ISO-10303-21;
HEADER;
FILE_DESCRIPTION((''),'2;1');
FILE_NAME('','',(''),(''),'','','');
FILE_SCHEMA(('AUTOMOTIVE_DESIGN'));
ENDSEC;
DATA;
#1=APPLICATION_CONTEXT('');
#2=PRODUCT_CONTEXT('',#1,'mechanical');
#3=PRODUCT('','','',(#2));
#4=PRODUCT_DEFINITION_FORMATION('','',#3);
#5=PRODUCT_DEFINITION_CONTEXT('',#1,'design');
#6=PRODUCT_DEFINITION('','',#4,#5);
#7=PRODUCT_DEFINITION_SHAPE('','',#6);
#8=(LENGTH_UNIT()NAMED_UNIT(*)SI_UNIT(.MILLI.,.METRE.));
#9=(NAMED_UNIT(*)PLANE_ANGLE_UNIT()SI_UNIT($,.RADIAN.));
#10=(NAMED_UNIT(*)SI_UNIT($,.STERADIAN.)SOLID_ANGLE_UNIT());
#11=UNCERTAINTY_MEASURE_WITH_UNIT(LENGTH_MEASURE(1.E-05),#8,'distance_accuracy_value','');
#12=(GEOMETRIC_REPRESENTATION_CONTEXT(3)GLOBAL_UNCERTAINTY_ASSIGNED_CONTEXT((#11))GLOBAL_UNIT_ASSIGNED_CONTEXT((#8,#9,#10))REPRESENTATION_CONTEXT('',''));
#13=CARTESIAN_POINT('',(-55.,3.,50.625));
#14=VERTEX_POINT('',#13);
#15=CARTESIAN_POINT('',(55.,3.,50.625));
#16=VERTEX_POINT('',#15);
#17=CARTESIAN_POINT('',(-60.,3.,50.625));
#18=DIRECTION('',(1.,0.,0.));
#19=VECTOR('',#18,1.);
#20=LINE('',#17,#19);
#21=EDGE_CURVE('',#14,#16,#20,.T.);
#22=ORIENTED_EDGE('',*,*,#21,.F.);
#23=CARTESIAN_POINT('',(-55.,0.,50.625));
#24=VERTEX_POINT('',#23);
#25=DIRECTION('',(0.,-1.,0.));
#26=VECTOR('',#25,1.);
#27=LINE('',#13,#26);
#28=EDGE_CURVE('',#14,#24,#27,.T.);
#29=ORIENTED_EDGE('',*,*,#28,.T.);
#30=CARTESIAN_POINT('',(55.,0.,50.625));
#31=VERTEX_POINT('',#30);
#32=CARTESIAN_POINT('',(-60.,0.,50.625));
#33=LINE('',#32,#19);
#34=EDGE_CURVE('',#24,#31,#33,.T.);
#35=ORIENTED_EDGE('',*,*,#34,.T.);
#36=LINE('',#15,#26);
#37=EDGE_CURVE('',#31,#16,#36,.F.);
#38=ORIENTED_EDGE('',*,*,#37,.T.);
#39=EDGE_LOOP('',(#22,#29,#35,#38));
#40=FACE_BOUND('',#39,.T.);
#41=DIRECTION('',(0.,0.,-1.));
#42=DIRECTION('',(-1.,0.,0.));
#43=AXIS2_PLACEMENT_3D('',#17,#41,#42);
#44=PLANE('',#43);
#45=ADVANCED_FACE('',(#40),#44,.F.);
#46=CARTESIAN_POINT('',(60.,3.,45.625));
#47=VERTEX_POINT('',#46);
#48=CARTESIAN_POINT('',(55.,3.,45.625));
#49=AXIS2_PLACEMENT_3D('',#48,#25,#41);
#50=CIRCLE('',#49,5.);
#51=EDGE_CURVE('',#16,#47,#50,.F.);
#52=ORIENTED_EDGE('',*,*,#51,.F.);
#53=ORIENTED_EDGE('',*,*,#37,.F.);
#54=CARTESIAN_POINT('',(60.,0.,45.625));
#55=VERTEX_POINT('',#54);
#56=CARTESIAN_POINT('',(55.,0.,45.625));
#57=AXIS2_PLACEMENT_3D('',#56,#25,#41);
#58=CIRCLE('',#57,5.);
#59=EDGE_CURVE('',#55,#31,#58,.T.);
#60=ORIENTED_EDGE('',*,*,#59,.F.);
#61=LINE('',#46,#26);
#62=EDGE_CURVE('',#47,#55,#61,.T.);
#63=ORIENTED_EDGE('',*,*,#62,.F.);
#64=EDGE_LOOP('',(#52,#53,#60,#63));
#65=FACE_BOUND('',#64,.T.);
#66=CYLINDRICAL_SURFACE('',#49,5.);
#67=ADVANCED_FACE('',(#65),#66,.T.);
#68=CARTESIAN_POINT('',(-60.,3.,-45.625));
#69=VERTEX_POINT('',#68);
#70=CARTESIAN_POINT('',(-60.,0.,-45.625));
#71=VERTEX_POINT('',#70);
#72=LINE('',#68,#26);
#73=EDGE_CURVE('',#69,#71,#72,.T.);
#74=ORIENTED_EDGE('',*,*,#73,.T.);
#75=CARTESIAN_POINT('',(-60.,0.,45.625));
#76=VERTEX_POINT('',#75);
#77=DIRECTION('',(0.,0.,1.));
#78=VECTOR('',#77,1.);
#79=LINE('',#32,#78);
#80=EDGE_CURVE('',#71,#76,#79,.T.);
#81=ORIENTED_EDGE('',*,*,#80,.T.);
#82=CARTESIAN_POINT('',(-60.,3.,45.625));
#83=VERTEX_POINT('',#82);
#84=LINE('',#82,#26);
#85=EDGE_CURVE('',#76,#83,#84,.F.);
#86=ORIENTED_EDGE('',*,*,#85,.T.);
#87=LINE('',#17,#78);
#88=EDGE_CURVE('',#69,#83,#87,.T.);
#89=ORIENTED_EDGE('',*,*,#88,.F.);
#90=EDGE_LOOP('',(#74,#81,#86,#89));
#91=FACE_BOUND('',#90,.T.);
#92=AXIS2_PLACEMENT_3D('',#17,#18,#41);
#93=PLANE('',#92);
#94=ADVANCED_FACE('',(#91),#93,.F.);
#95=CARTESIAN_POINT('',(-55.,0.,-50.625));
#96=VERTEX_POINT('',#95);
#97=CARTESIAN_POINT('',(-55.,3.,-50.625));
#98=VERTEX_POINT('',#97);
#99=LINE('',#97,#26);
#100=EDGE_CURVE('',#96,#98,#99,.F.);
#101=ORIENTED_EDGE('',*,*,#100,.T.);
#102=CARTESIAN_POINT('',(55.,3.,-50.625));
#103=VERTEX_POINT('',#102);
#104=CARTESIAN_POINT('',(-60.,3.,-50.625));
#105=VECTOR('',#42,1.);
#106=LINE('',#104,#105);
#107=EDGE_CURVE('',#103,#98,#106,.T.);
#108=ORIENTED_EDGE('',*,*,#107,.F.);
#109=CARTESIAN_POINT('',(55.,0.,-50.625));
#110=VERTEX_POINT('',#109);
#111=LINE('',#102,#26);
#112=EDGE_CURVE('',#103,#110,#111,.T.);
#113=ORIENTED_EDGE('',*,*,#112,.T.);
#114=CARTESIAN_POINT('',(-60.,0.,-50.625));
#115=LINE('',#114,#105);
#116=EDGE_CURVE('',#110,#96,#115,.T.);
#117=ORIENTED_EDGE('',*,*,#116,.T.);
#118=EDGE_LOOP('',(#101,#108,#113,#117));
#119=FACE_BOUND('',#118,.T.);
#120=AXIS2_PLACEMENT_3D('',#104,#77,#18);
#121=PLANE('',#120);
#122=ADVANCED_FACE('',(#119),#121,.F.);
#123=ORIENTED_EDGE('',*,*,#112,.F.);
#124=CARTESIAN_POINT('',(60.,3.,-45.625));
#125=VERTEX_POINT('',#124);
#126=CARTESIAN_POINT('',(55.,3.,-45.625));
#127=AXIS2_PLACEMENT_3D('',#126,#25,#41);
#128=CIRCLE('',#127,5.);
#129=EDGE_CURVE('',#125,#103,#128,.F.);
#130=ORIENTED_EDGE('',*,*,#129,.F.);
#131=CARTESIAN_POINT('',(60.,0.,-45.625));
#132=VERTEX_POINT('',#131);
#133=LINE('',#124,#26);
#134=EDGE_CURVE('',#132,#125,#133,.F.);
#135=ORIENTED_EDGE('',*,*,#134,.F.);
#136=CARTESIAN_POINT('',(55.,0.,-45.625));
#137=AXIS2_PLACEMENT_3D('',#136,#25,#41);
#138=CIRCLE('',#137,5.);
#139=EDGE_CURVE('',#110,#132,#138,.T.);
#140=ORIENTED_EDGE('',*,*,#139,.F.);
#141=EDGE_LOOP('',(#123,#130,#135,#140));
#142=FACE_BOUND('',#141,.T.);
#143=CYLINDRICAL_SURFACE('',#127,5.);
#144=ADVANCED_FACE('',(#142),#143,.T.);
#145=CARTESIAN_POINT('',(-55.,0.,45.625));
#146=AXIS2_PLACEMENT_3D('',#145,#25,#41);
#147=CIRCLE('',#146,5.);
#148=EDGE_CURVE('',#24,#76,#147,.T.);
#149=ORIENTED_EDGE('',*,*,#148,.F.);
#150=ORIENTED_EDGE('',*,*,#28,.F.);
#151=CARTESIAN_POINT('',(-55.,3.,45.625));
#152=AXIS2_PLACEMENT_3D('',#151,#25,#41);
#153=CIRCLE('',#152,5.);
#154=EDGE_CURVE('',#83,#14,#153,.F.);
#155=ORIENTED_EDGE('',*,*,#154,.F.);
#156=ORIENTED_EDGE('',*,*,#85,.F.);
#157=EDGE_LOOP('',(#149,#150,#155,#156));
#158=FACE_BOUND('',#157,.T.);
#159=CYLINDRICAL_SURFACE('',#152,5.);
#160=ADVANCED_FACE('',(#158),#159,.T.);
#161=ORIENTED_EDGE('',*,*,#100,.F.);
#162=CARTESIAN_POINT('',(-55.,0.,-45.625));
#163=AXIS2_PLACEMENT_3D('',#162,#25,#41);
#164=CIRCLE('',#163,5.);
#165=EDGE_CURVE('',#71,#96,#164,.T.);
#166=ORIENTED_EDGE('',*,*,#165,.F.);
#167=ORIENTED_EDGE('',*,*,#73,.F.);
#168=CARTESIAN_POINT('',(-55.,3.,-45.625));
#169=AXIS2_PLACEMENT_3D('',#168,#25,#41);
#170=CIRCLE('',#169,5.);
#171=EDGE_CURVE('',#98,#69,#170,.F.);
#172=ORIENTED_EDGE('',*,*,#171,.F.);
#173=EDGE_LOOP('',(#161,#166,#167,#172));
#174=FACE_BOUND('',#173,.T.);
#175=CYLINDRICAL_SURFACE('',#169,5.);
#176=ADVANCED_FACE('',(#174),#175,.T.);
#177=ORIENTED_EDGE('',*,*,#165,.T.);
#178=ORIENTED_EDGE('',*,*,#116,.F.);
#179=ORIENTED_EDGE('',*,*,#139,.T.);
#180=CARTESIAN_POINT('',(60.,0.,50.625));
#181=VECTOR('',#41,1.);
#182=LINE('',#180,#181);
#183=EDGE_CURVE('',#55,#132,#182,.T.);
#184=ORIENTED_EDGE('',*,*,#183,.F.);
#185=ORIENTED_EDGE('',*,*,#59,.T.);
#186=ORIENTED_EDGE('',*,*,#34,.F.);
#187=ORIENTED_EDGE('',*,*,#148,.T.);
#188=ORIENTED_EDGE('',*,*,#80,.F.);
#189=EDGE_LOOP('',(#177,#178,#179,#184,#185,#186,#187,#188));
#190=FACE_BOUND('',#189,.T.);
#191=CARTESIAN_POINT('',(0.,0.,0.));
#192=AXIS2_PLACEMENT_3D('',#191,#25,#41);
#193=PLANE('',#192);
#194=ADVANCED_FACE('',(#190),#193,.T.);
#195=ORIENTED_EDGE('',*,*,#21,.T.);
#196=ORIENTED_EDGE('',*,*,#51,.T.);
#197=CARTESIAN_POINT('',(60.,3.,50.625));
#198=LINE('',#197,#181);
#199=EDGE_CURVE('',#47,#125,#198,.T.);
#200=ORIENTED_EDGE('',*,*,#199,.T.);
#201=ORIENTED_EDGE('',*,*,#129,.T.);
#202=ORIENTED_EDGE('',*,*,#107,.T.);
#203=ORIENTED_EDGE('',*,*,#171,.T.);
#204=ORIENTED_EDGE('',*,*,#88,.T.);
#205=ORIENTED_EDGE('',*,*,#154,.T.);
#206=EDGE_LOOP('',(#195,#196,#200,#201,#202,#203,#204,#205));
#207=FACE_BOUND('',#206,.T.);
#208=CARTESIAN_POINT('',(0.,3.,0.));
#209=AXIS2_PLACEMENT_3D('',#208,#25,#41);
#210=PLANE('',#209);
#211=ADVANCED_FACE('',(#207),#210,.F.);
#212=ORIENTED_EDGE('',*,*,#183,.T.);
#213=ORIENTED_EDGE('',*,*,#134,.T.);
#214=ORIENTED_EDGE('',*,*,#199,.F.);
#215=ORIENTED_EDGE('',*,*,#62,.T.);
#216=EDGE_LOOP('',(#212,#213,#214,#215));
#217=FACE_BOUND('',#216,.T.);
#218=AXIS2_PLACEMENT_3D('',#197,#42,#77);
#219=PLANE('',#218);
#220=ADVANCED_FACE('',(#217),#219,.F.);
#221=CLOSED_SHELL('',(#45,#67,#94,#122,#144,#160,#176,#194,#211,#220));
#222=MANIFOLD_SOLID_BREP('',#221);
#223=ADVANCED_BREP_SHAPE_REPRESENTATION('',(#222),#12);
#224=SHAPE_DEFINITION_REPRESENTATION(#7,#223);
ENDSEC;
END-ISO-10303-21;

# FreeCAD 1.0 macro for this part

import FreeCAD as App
import Part
import Sketcher
from FreeCAD import Vector
Q = App.Units.Quantity


def edges_at(feature, points):
    """Names of the edges that pass closest to the given points."""
    edges = feature.Shape.Edges
    near = lambda p: min(range(len(edges)), key=lambda i: edges[i].distToShape(Part.Vertex(*p))[0])
    return sorted({f"Edge{near(p) + 1}" for p in points})


def add_polygon(sketch, points):
    """Adds a closed chain of lines whose ends are joined by coincident constraints."""
    first, n = sketch.GeometryCount, len(points)
    for a, b in zip(points, points[1:] + points[:1]):
        sketch.addGeometry(Part.LineSegment(App.Vector(*a, 0), App.Vector(*b, 0)), False)
    for i in range(n):
        sketch.addConstraint(Sketcher.Constraint("Coincident", first + i, 2, first + (i + 1) % n, 1))

doc = App.newDocument("Part")
params = doc.addObject("Spreadsheet::Sheet", "Params")
for row, (alias, value) in enumerate([
    ("sketch1_width", "120 mm"),
    ("sketch1_height", "101.25 mm"),
    ("pad1_length", "3 mm"),
    ("fillet_radius", "5 mm"),
], start=1):
    params.set(f"A{row}", alias)
    params.set(f"B{row}", "=" + value)
    params.setAlias(f"B{row}", alias)

body = doc.addObject("PartDesign::Body", "Body")

sketch1 = body.newObject("Sketcher::SketchObject", "Sketch")
sketch1.AttachmentSupport = (doc.getObject("XZ_Plane"), [""])
sketch1.MapMode = "FlatFace"
add_polygon(sketch1, [(-60, -50.625), (-60, 50.625), (60, 50.625), (60, -50.625)])
sketch1.addConstraint(Sketcher.Constraint("Vertical", 0))
sketch1.addConstraint(Sketcher.Constraint("Horizontal", 1))
sketch1.addConstraint(Sketcher.Constraint("Vertical", 2))
sketch1.addConstraint(Sketcher.Constraint("Horizontal", 3))
sketch1.addConstraint(Sketcher.Constraint("Symmetric", 0, 2, 2, 2, -1, 1))
sketch1.addConstraint(Sketcher.Constraint("DistanceX", 1, 1, 1, 2, Q("120 mm")))
sketch1.addConstraint(Sketcher.Constraint("DistanceY", 0, 1, 0, 2, Q("101.25 mm")))
sketch1.setExpression("Constraints[9]", "Params.sketch1_width")
sketch1.setExpression("Constraints[10]", "Params.sketch1_height")
pad1 = body.newObject("PartDesign::Pad", "Pad")
pad1.Profile = sketch1
pad1.setExpression("Length", "Params.pad1_length")
pad1.Reversed = True
doc.recompute()

fillet = body.newObject("PartDesign::Fillet", "Fillet")
fillet.Base = (pad1, edges_at(pad1, [
    (60, 1.5, 50.625),
    (-60, 1.5, 50.625),
    (-60, 1.5, -50.625),
    (60, 1.5, -50.625),
]))
fillet.setExpression("Radius", "Params.fillet_radius")

doc.recompute()
